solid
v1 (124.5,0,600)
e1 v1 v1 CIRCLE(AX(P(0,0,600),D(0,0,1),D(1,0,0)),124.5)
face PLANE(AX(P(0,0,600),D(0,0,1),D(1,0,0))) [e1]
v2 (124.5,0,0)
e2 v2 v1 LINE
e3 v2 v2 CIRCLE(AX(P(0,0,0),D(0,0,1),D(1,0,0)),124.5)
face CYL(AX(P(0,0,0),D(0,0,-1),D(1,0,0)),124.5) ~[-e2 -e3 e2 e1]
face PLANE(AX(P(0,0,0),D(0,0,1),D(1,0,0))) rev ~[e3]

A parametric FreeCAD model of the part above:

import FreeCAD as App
import Part
import Sketcher
Q = App.Units.Quantity

doc = App.newDocument("Part")
body = doc.addObject("PartDesign::Body", "Body")

# Sketch on XY plane
sketch1 = body.newObject("Sketcher::SketchObject", "Sketch")
sketch1.AttachmentSupport = (doc.getObject("XY_Plane"), [""])
sketch1.MapMode = "FlatFace"
sketch1.addGeometry(Part.Circle(App.Vector(0, 0, 0), App.Vector(0, 0, 1), 124), False)
sketch1.addConstraint([
    Sketcher.Constraint("Coincident", 0, 3, -1, 1),
    Sketcher.Constraint("Diameter", 0, Q("249 mm")),
])
pad1 = body.newObject("PartDesign::Pad", "Pad")
pad1.Profile = sketch1
pad1.Length = 600

doc.recompute()
